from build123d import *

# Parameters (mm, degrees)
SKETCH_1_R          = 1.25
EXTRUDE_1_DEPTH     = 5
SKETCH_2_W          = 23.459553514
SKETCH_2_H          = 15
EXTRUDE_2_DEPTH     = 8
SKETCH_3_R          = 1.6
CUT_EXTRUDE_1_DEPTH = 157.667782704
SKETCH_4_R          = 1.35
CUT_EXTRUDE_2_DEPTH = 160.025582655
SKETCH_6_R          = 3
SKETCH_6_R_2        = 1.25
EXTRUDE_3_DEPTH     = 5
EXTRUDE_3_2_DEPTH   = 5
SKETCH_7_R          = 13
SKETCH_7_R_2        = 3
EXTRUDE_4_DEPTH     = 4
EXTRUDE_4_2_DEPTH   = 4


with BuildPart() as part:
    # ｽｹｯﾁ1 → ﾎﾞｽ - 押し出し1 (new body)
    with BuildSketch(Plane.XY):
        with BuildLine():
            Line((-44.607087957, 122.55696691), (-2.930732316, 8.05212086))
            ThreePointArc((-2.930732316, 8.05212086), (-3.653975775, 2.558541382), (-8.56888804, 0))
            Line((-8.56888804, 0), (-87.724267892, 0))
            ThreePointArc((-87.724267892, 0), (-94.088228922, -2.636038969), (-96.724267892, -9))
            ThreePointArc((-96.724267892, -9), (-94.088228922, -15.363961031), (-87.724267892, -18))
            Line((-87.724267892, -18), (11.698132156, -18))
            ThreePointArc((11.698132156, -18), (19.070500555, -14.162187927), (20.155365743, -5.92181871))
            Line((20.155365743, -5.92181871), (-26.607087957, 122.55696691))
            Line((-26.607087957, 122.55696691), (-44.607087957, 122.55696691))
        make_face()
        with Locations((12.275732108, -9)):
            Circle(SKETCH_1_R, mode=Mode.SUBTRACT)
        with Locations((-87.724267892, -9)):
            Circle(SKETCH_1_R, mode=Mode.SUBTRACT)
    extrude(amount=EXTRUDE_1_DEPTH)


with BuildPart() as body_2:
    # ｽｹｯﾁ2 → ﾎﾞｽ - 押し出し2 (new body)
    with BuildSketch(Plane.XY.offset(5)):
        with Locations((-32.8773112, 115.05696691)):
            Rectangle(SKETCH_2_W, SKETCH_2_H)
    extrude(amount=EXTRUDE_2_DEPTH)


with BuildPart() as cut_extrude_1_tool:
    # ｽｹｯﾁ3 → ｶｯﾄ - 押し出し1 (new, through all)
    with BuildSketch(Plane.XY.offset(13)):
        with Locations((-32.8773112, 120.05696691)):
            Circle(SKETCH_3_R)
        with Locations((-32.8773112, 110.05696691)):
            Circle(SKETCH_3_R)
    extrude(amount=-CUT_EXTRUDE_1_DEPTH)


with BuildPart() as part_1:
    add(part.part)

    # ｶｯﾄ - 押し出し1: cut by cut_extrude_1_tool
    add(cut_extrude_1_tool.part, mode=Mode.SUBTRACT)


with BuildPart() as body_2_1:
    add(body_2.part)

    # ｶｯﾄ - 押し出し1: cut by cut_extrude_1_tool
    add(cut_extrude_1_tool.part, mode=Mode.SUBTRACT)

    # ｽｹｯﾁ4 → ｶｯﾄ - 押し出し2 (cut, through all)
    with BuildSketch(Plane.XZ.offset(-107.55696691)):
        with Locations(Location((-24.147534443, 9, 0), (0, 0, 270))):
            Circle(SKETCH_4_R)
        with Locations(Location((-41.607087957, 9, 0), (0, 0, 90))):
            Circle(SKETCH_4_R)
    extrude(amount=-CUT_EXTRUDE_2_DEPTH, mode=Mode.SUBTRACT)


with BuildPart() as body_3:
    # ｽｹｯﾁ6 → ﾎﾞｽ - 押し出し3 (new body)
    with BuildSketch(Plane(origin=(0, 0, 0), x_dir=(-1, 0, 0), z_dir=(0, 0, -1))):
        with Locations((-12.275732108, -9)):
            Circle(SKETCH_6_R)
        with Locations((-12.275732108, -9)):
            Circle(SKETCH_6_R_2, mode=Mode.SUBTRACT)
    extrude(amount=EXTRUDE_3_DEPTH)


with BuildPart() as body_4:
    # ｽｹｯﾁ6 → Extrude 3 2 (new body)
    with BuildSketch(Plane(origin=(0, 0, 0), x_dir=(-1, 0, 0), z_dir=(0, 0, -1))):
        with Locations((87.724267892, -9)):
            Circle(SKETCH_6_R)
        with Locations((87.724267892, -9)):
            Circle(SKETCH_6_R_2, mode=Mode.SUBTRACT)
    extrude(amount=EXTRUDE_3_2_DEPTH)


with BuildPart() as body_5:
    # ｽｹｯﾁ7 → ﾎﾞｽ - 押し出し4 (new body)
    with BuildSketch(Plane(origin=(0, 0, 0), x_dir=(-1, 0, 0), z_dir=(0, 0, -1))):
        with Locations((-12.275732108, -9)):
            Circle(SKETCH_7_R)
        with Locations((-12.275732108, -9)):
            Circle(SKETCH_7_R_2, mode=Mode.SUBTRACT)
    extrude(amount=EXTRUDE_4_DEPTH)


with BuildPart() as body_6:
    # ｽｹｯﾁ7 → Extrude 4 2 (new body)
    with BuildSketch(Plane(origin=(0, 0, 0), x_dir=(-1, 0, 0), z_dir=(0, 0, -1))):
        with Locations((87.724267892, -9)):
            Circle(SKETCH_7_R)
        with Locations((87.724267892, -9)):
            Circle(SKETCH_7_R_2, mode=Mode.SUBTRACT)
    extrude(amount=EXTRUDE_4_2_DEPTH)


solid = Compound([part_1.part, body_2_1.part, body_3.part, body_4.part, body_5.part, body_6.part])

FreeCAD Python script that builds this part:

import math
import FreeCAD as App
import Part
import Sketcher
from FreeCAD import Vector
Q = App.Units.Quantity

doc = App.newDocument("Part")
body = doc.addObject("PartDesign::Body", "Body")

sketch1 = doc.addObject("Sketcher::SketchObject", "Sketch")
body.addObject(sketch1)
sketch1.AttachmentSupport = (doc.XY_Plane, [""])
sketch1.MapMode = "FlatFace"
sketch1.addGeometry([
    Part.LineSegment(Vector(-44.6, 122.6, 0), Vector(-2.9, 8.1, 0)),
    Part.ArcOfCircle(Part.Circle(Vector(-8.6, 6, 0), Vector(0, 0, 1), 6), math.radians(-90), math.radians(20)),
    Part.LineSegment(Vector(-8.6, 0, 0), Vector(-87.7, 0, 0)),
    Part.ArcOfCircle(Part.Circle(Vector(-87.7, -9, 0), Vector(0, 0, 1), 9), math.radians(90), math.radians(180)),
    Part.ArcOfCircle(Part.Circle(Vector(-87.7, -9, 0), Vector(0, 0, 1), 9), math.radians(-180), math.radians(-90)),
    Part.LineSegment(Vector(-87.7, -18, 0), Vector(11.7, -18, 0)),
    Part.ArcOfCircle(Part.Circle(Vector(11.7, -9, 0), Vector(0, 0, 1), 9), math.radians(-90), math.radians(20)),
    Part.LineSegment(Vector(20.2, -5.9, 0), Vector(-26.6, 122.6, 0)),
    Part.LineSegment(Vector(-26.6, 122.6, 0), Vector(-44.6, 122.6, 0)),
    Part.Circle(Vector(-87.7, -9, 0), Vector(0, 0, 1), 1.2),
    Part.Circle(Vector(12.3, -9, 0), Vector(0, 0, 1), 1.2),
], False)
sketch1.addConstraint([
    Sketcher.Constraint("Tangent", 0, 2, 1, 2),
    Sketcher.Constraint("Tangent", 1, 1, 2, 1),
    Sketcher.Constraint("Tangent", 2, 2, 3, 1),
    Sketcher.Constraint("Tangent", 3, 2, 4, 1),
    Sketcher.Constraint("Tangent", 4, 2, 5, 1),
    Sketcher.Constraint("Tangent", 5, 2, 6, 1),
    Sketcher.Constraint("Tangent", 6, 2, 7, 1),
    Sketcher.Constraint("Coincident", 7, 2, 8, 1),
    Sketcher.Constraint("Coincident", 8, 2, 0, 1),
    Sketcher.Constraint("Horizontal", 2),
    Sketcher.Constraint("Horizontal", 5),
    Sketcher.Constraint("Horizontal", 8),
    Sketcher.Constraint("Coincident", 9, 3, 3, 3),
    Sketcher.Constraint("Equal", 3, 4),
    Sketcher.Constraint("Equal", 4, 6),
    Sketcher.Constraint("Equal", 9, 10),
    Sketcher.Constraint("PointOnObject", 1, 1, -1),
    Sketcher.Constraint("Parallel", 0, 7),
    Sketcher.Constraint("Horizontal", 9, 3, 10, 3),
    Sketcher.Constraint("Horizontal", 10, 3, 3, 2),
    Sketcher.Constraint("Radius", 1, Q("6 mm")),
    Sketcher.Constraint("Radius", 3, Q("9 mm")),
    Sketcher.Constraint("Diameter", 9, Q("2.5 mm")),
    Sketcher.Constraint("DistanceX", 8, 2, 8, 1, Q("18 mm")),
    Sketcher.Constraint("Angle", 0, Q("-70 deg")),
    Sketcher.Constraint("DistanceX", 3, 3, 10, 3, Q("100 mm")),
    Sketcher.Constraint("DistanceX", 5, 1, 5, 2, Q("99.4224 mm")),
    Sketcher.Constraint("DistanceX", 7, 2, 1, 3, Q("18.0382 mm")),
    Sketcher.Constraint("DistanceX", 1, 3, -1, 1, Q("8.568888 mm")),
])
pad1 = doc.addObject("PartDesign::Pad", "Pad")
body.addObject(pad1)
pad1.Profile = sketch1
pad1.Length = 5
body2 = doc.addObject("PartDesign::Body", "Body001")

sketch2 = doc.addObject("Sketcher::SketchObject", "Sketch001")
body2.addObject(sketch2)
sketch2.AttachmentSupport = (doc.getObject("XY_Plane001"), [""])
sketch2.MapMode = "FlatFace"
sketch2.AttachmentOffset = App.Placement(Vector(0, 0, 5), App.Rotation())
sketch2.addGeometry([
    Part.LineSegment(Vector(-45, 123, 0), Vector(-45, 108, 0)),
    Part.LineSegment(Vector(-45, 108, 0), Vector(-21, 108, 0)),
    Part.LineSegment(Vector(-21, 108, 0), Vector(-21, 123, 0)),
    Part.LineSegment(Vector(-21, 123, 0), Vector(-45, 123, 0)),
], False)
sketch2.addConstraint([
    Sketcher.Constraint("Coincident", 0, 2, 1, 1),
    Sketcher.Constraint("Coincident", 1, 2, 2, 1),
    Sketcher.Constraint("Coincident", 2, 2, 3, 1),
    Sketcher.Constraint("Coincident", 3, 2, 0, 1),
    Sketcher.Constraint("Vertical", 0),
    Sketcher.Constraint("Horizontal", 1),
    Sketcher.Constraint("Vertical", 2),
    Sketcher.Constraint("Horizontal", 3),
    Sketcher.Constraint("DistanceY", 0, 2, 0, 1, Q("15 mm")),
    Sketcher.Constraint("DistanceX", 1, 1, 1, 2, Q("23.459554 mm")),
    Sketcher.Constraint("DistanceX", 0, 2, -1, 1, Q("44.607088 mm")),
    Sketcher.Constraint("DistanceY", -1, 1, 0, 2, Q("107.556967 mm")),
])
pad2 = doc.addObject("PartDesign::Pad", "Pad001")
body2.addObject(pad2)
pad2.Profile = sketch2
pad2.Length = 8
body3 = doc.addObject("PartDesign::Body", "Body002")
body3.AllowCompound = True

sketch3 = doc.addObject("Sketcher::SketchObject", "Sketch002")
body3.addObject(sketch3)
sketch3.AttachmentSupport = (doc.getObject("XY_Plane002"), [""])
sketch3.MapMode = "FlatFace"
sketch3.AttachmentOffset = App.Placement(Vector(0, 0, 13), App.Rotation())
sketch3.addGeometry([
    Part.Circle(Vector(-32.9, 120.1, 0), Vector(0, 0, 1), 1.6),
    Part.Circle(Vector(-32.9, 110.1, 0), Vector(0, 0, 1), 1.6),
], False)
sketch3.addConstraint([
    Sketcher.Constraint("Equal", 0, 1),
    Sketcher.Constraint("Vertical", 0, 3, 1, 3),
    Sketcher.Constraint("Diameter", 0, Q("3.2 mm")),
    Sketcher.Constraint("DistanceY", 1, 3, 0, 3, Q("10 mm")),
    Sketcher.Constraint("DistanceX", 0, 3, -1, 1, Q("32.877311 mm")),
    Sketcher.Constraint("DistanceY", -1, 1, 0, 3, Q("120.056967 mm")),
])
pad3 = doc.addObject("PartDesign::Pad", "Pad002")
body3.addObject(pad3)
pad3.Profile = sketch3
pad3.Length = 157.667783
pad3.Reversed = True
doc.recompute()

body4 = doc.addObject("PartDesign::Body", "Body003")
body4.BaseFeature = body3
boolean = doc.addObject("PartDesign::Boolean", "Boolean")
body.addObject(boolean)
boolean.Type = "Cut"
boolean.addObjects([body4])
doc.recompute()

boolean2 = doc.addObject("PartDesign::Boolean", "Boolean001")
body2.addObject(boolean2)
boolean2.Type = "Cut"
boolean2.addObjects([body3])

sketch4 = doc.addObject("Sketcher::SketchObject", "Sketch003")
body2.addObject(sketch4)
sketch4.AttachmentSupport = (doc.getObject("XZ_Plane001"), [""])
sketch4.MapMode = "FlatFace"
sketch4.AttachmentOffset = App.Placement(Vector(0, 0, -107.556967), App.Rotation())
sketch4.addGeometry([
    Part.Circle(Vector(-24.1, 9, 0), Vector(0, 0, 1), 1.4),
    Part.Circle(Vector(-41.6, 9, 0), Vector(0, 0, 1), 1.4),
], False)
sketch4.addConstraint([
    Sketcher.Constraint("Equal", 0, 1),
    Sketcher.Constraint("Horizontal", 0, 3, 1, 3),
    Sketcher.Constraint("Diameter", 0, Q("2.7 mm")),
    Sketcher.Constraint("DistanceY", -1, 1, 0, 3, Q("9 mm")),
    Sketcher.Constraint("DistanceX", 0, 3, -1, 1, Q("24.147534 mm")),
    Sketcher.Constraint("DistanceX", 1, 3, -1, 1, Q("41.607088 mm")),
])
pocket1 = doc.addObject("PartDesign::Pocket", "Pocket")
body2.addObject(pocket1)
pocket1.Profile = sketch4
pocket1.Type = "ThroughAll"
body5 = doc.addObject("PartDesign::Body", "Body004")

sketch5 = doc.addObject("Sketcher::SketchObject", "Sketch004")
body5.addObject(sketch5)
sketch5.AttachmentSupport = (doc.getObject("XY_Plane004"), [""])
sketch5.MapMode = "FlatFace"
sketch5.addGeometry([
    Part.Circle(Vector(12.3, -9, 0), Vector(0, 0, 1), 3),
    Part.Circle(Vector(12.3, -9, 0), Vector(0, 0, 1), 1.2),
], False)
sketch5.addConstraint([
    Sketcher.Constraint("Coincident", 1, 3, 0, 3),
    Sketcher.Constraint("Diameter", 0, Q("6 mm")),
    Sketcher.Constraint("Diameter", 1, Q("2.5 mm")),
    Sketcher.Constraint("DistanceY", 0, 3, -1, 1, Q("9 mm")),
    Sketcher.Constraint("DistanceX", -1, 1, 0, 3, Q("12.275732 mm")),
])
pad4 = doc.addObject("PartDesign::Pad", "Pad003")
body5.addObject(pad4)
pad4.Profile = sketch5
pad4.Length = 5
pad4.Reversed = True
body6 = doc.addObject("PartDesign::Body", "Body005")

sketch6 = doc.addObject("Sketcher::SketchObject", "Sketch005")
body6.addObject(sketch6)
sketch6.AttachmentSupport = (doc.getObject("XY_Plane005"), [""])
sketch6.MapMode = "FlatFace"
sketch6.addGeometry([
    Part.Circle(Vector(-87.7, -9, 0), Vector(0, 0, 1), 3),
    Part.Circle(Vector(-87.7, -9, 0), Vector(0, 0, 1), 1.2),
], False)
sketch6.addConstraint([
    Sketcher.Constraint("Coincident", 1, 3, 0, 3),
    Sketcher.Constraint("Diameter", 0, Q("6 mm")),
    Sketcher.Constraint("Diameter", 1, Q("2.5 mm")),
    Sketcher.Constraint("DistanceY", 0, 3, -1, 1, Q("9 mm")),
    Sketcher.Constraint("DistanceX", 0, 3, -1, 1, Q("87.724268 mm")),
])
pad5 = doc.addObject("PartDesign::Pad", "Pad004")
body6.addObject(pad5)
pad5.Profile = sketch6
pad5.Length = 5
pad5.Reversed = True
body7 = doc.addObject("PartDesign::Body", "Body006")

sketch7 = doc.addObject("Sketcher::SketchObject", "Sketch006")
body7.addObject(sketch7)
sketch7.AttachmentSupport = (doc.getObject("XY_Plane006"), [""])
sketch7.MapMode = "FlatFace"
sketch7.addGeometry([
    Part.Circle(Vector(12.3, -9, 0), Vector(0, 0, 1), 13),
    Part.Circle(Vector(12.3, -9, 0), Vector(0, 0, 1), 3),
], False)
sketch7.addConstraint([
    Sketcher.Constraint("Coincident", 1, 3, 0, 3),
    Sketcher.Constraint("Diameter", 0, Q("26 mm")),
    Sketcher.Constraint("Diameter", 1, Q("6 mm")),
    Sketcher.Constraint("DistanceY", 0, 3, -1, 1, Q("9 mm")),
    Sketcher.Constraint("DistanceX", -1, 1, 0, 3, Q("12.275732 mm")),
])
pad6 = doc.addObject("PartDesign::Pad", "Pad005")
body7.addObject(pad6)
pad6.Profile = sketch7
pad6.Length = 4
pad6.Reversed = True
body8 = doc.addObject("PartDesign::Body", "Body007")

sketch8 = doc.addObject("Sketcher::SketchObject", "Sketch007")
body8.addObject(sketch8)
sketch8.AttachmentSupport = (doc.getObject("XY_Plane007"), [""])
sketch8.MapMode = "FlatFace"
sketch8.addGeometry([
    Part.Circle(Vector(-87.7, -9, 0), Vector(0, 0, 1), 13),
    Part.Circle(Vector(-87.7, -9, 0), Vector(0, 0, 1), 3),
], False)
sketch8.addConstraint([
    Sketcher.Constraint("Coincident", 1, 3, 0, 3),
    Sketcher.Constraint("Diameter", 0, Q("26 mm")),
    Sketcher.Constraint("Diameter", 1, Q("6 mm")),
    Sketcher.Constraint("DistanceY", 0, 3, -1, 1, Q("9 mm")),
    Sketcher.Constraint("DistanceX", 0, 3, -1, 1, Q("87.724268 mm")),
])
pad7 = doc.addObject("PartDesign::Pad", "Pad006")
body8.addObject(pad7)
pad7.Profile = sketch8
pad7.Length = 4
pad7.Reversed = True

doc.recompute()
